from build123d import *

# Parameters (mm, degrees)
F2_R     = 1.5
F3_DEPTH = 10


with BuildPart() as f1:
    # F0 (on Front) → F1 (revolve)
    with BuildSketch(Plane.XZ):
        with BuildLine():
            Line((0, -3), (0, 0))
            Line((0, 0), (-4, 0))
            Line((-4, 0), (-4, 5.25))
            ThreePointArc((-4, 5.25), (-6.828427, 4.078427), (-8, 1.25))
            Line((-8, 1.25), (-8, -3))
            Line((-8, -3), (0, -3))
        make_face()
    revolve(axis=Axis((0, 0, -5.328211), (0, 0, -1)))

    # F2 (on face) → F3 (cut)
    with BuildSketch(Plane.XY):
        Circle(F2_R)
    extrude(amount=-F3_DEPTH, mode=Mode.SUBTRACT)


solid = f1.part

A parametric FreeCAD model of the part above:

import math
import FreeCAD as App
import Part
import Sketcher

doc = App.newDocument("Part")
body = doc.addObject("PartDesign::Body", "Body")

# Sketch on XZ plane
sketch1 = body.newObject("Sketcher::SketchObject", "Sketch")
sketch1.AttachmentSupport = (doc.getObject("XZ_Plane"), [""])
sketch1.MapMode = "FlatFace"
sketch1.addGeometry(Part.LineSegment(App.Vector(0, -3, 0), App.Vector(0, 0, 0)), False)
sketch1.addGeometry(Part.LineSegment(App.Vector(0, 0, 0), App.Vector(-4, 0, 0)), False)
sketch1.addGeometry(Part.LineSegment(App.Vector(-4, 0, 0), App.Vector(-4, 5.2, 0)), False)
sketch1.addGeometry(Part.ArcOfCircle(Part.Circle(App.Vector(-4, 1.2, 0), App.Vector(0, 0, 1), 4), math.radians(90), math.radians(180)), False)
sketch1.addGeometry(Part.LineSegment(App.Vector(-8, 1.2, 0), App.Vector(-8, -3, 0)), False)
sketch1.addGeometry(Part.LineSegment(App.Vector(-8, -3, 0), App.Vector(0, -3, 0)), False)
sketch1.addConstraint(Sketcher.Constraint("Coincident", 0, 2, 1, 1))
sketch1.addConstraint(Sketcher.Constraint("Coincident", 1, 2, 2, 1))
sketch1.addConstraint(Sketcher.Constraint("Coincident", 2, 2, 3, 1))
sketch1.addConstraint(Sketcher.Constraint("Tangent", 3, 2, 4, 1))
sketch1.addConstraint(Sketcher.Constraint("Coincident", 4, 2, 5, 1))
sketch1.addConstraint(Sketcher.Constraint("Coincident", 5, 2, 0, 1))
sketch1.addConstraint(Sketcher.Constraint("Vertical", 0))
sketch1.addConstraint(Sketcher.Constraint("Horizontal", 1))
sketch1.addConstraint(Sketcher.Constraint("Vertical", 2))
sketch1.addConstraint(Sketcher.Constraint("Vertical", 4))
sketch1.addConstraint(Sketcher.Constraint("Horizontal", 5))
sketch1.addConstraint(Sketcher.Constraint("Coincident", 0, 2, -1, 1))
sketch1.addConstraint(Sketcher.Constraint("Vertical", 3, 3, 1, 2))
sketch1.addConstraint(Sketcher.Constraint("Radius", 3, 4.0))
sketch1.addConstraint(Sketcher.Constraint("DistanceX", 1, 2, 1, 1, 4.0))
sketch1.addConstraint(Sketcher.Constraint("DistanceY", 0, 1, 0, 2, 3.0))
sketch1.addConstraint(Sketcher.Constraint("DistanceY", 2, 1, 2, 2, 5.25))
revolution = body.newObject("PartDesign::Revolution", "Revolution")
revolution.Profile = sketch1
revolution.ReferenceAxis = (sketch1, ["V_Axis"])
revolution.Angle = 360

# Sketch on XY plane
sketch2 = body.newObject("Sketcher::SketchObject", "Sketch001")
sketch2.AttachmentSupport = (doc.getObject("XY_Plane"), [""])
sketch2.MapMode = "FlatFace"
sketch2.addGeometry(Part.Circle(App.Vector(0, 0, 0), App.Vector(0, 0, 1), 1.5), False)
sketch2.addConstraint(Sketcher.Constraint("Coincident", 0, 3, -1, 1))
sketch2.addConstraint(Sketcher.Constraint("Diameter", 0, 3.0))
pocket1 = body.newObject("PartDesign::Pocket", "Pocket")
pocket1.Profile = sketch2
pocket1.Length = 10

doc.recompute()
